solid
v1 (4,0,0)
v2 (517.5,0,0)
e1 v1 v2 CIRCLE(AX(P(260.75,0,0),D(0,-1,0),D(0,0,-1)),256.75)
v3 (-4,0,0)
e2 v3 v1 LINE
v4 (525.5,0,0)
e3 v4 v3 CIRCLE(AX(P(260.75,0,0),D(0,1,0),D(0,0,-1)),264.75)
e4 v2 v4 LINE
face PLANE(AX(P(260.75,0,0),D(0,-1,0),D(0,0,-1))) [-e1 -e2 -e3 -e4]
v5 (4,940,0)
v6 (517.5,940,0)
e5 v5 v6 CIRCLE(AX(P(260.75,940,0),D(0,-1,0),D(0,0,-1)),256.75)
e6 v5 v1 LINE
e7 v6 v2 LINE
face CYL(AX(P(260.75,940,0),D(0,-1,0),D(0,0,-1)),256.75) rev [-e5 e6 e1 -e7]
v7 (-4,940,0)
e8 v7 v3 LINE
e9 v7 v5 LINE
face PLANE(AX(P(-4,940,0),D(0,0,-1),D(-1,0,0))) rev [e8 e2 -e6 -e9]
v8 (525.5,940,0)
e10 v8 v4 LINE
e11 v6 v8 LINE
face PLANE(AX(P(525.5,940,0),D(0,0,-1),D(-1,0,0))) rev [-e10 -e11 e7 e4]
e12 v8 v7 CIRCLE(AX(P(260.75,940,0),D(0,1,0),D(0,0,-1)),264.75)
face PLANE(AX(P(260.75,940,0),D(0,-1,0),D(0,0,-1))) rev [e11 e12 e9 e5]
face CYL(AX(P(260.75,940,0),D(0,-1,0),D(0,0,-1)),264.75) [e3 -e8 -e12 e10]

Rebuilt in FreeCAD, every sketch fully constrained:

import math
import FreeCAD as App
import Part
import Sketcher

V = App.Vector

doc = App.newDocument("Part")
body = doc.addObject("PartDesign::Body", "Body")

# Sketch on XZ plane
sketch1 = body.newObject("Sketcher::SketchObject", "Sketch")
sketch1.AttachmentSupport = (doc.getObject("XZ_Plane"), [""])
sketch1.MapMode = "FlatFace"
sketch1.addGeometry(Part.LineSegment(V(-4, 0, 0), V(4, 0, 0)), False)
sketch1.addGeometry(Part.ArcOfCircle(Part.Circle(V(260.75, 0, 0), V(0, 0, 1), 256.75), math.radians(180), math.radians(360)), False)
sketch1.addGeometry(Part.LineSegment(V(517.5, 0, 0), V(525.5, 0, 0)), False)
sketch1.addGeometry(Part.ArcOfCircle(Part.Circle(V(260.75, 0, 0), V(0, 0, 1), 264.75), math.radians(180), math.radians(360)), False)
sketch1.addConstraint(Sketcher.Constraint("Coincident", 0, 2, 1, 1))
sketch1.addConstraint(Sketcher.Constraint("Coincident", 1, 2, 2, 1))
sketch1.addConstraint(Sketcher.Constraint("Coincident", 2, 2, 3, 2))
sketch1.addConstraint(Sketcher.Constraint("Coincident", 3, 1, 0, 1))
sketch1.addConstraint(Sketcher.Constraint("Horizontal", 0))
sketch1.addConstraint(Sketcher.Constraint("Horizontal", 2))
sketch1.addConstraint(Sketcher.Constraint("Coincident", 3, 3, 1, 3))
sketch1.addConstraint(Sketcher.Constraint("Symmetric", 0, 2, 3, 1, -1, 1))
sketch1.addConstraint(Sketcher.Constraint("PointOnObject", 1, 3, -1))
sketch1.addConstraint(Sketcher.Constraint("PointOnObject", 1, 2, -1))
sketch1.addConstraint(Sketcher.Constraint("DistanceX", 0, 1, 0, 2, 8.0))
sketch1.addConstraint(Sketcher.Constraint("Radius", 1, 256.75))
pad1 = body.newObject("PartDesign::Pad", "Pad")
pad1.Profile = sketch1
pad1.Length = 940
pad1.Reversed = True

doc.recompute()
